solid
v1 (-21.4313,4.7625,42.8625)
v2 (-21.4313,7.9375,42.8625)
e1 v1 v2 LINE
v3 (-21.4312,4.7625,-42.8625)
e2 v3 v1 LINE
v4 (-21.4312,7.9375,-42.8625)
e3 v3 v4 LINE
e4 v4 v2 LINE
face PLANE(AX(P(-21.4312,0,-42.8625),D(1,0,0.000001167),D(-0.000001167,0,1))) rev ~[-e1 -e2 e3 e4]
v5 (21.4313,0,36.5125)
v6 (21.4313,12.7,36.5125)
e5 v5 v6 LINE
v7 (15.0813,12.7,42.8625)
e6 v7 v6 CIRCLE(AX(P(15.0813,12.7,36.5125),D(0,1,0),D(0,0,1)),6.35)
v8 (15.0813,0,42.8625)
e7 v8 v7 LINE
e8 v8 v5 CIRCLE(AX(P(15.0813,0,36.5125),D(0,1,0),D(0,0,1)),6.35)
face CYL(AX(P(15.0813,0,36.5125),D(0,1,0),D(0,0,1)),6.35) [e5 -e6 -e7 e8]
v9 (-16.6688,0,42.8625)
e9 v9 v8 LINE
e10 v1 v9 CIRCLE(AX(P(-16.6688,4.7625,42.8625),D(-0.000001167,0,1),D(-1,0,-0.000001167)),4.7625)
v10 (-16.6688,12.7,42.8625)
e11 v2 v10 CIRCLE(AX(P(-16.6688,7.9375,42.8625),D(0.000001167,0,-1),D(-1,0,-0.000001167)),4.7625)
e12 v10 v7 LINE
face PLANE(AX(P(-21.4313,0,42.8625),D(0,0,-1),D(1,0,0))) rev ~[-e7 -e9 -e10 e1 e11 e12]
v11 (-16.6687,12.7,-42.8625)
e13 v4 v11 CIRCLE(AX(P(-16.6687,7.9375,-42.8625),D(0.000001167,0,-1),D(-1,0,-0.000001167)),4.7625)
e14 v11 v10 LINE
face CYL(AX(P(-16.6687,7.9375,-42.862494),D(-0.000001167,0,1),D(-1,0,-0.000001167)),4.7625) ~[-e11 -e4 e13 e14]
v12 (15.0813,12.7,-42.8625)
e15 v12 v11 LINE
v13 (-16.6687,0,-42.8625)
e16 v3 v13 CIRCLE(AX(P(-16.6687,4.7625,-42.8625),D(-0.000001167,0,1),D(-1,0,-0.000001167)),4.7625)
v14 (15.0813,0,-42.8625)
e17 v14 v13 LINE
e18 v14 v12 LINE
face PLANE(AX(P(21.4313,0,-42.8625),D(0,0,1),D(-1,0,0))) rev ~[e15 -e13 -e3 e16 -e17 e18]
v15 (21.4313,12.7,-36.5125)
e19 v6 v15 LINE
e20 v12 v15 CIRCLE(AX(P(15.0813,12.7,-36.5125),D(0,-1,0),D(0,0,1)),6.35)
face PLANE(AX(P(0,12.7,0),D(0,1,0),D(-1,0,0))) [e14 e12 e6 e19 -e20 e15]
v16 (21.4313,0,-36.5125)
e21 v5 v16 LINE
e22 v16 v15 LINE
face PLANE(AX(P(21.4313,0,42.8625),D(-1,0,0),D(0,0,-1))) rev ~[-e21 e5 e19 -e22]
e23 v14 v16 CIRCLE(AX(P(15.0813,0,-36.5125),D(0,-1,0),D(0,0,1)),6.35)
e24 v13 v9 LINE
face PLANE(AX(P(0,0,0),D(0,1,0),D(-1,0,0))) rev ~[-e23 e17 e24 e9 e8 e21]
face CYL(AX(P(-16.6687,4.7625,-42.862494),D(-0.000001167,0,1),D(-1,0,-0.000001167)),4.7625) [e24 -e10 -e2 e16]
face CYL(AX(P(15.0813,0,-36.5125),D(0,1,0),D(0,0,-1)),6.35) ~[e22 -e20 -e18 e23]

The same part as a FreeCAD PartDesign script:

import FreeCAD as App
import Part
import Sketcher
Q = App.Units.Quantity


def edges_at(feature, points):
    """Names of the edges that pass closest to the given points."""
    edges = feature.Shape.Edges
    near = lambda p: min(range(len(edges)), key=lambda i: edges[i].distToShape(Part.Vertex(*p))[0])
    return sorted({f"Edge{near(p) + 1}" for p in points})


def add_polygon(sketch, points):
    """Adds a closed chain of lines whose ends are joined by coincident constraints."""
    first, n = sketch.GeometryCount, len(points)
    for a, b in zip(points, points[1:] + points[:1]):
        sketch.addGeometry(Part.LineSegment(App.Vector(*a, 0), App.Vector(*b, 0)), False)
    for i in range(n):
        sketch.addConstraint(Sketcher.Constraint("Coincident", first + i, 2, first + (i + 1) % n, 1))

doc = App.newDocument("Part")
body = doc.addObject("PartDesign::Body", "Body")

sketch1 = body.newObject("Sketcher::SketchObject", "Sketch")
sketch1.AttachmentSupport = (doc.getObject("XZ_Plane"), [""])
sketch1.MapMode = "FlatFace"
add_polygon(sketch1, [(-21.4312, -42.8625), (-21.4313, 42.8625), (21.4313, 42.8625), (21.4313, -42.8625)])
sketch1.addConstraint([
    Sketcher.Constraint("Vertical", 0),
    Sketcher.Constraint("Horizontal", 1),
    Sketcher.Constraint("Vertical", 2),
    Sketcher.Constraint("Horizontal", 3),
    Sketcher.Constraint("Symmetric", 0, 2, 2, 2, -1, 1),
    Sketcher.Constraint("DistanceX", 1, 1, 1, 2, Q("1.6875 in")),
    Sketcher.Constraint("DistanceY", 0, 1, 0, 2, Q("3.375 in")),
])
pad1 = body.newObject("PartDesign::Pad", "Pad")
pad1.Profile = sketch1
pad1.Length = Q("0.5 in")
pad1.Reversed = True
doc.recompute()

fillet = body.newObject("PartDesign::Fillet", "Fillet")
fillet.Base = (pad1, edges_at(pad1, [(-21.431, 12.7, 0), (-21.431, 0, 0)]))
fillet.Radius = Q("0.1875 in")
doc.recompute()

fillet2 = body.newObject("PartDesign::Fillet", "Fillet001")
fillet2.Base = (fillet, edges_at(fillet, [(21.431, 6.35, 42.862), (21.431, 6.35, -42.862)]))
fillet2.Radius = Q("0.25 in")

doc.recompute()
